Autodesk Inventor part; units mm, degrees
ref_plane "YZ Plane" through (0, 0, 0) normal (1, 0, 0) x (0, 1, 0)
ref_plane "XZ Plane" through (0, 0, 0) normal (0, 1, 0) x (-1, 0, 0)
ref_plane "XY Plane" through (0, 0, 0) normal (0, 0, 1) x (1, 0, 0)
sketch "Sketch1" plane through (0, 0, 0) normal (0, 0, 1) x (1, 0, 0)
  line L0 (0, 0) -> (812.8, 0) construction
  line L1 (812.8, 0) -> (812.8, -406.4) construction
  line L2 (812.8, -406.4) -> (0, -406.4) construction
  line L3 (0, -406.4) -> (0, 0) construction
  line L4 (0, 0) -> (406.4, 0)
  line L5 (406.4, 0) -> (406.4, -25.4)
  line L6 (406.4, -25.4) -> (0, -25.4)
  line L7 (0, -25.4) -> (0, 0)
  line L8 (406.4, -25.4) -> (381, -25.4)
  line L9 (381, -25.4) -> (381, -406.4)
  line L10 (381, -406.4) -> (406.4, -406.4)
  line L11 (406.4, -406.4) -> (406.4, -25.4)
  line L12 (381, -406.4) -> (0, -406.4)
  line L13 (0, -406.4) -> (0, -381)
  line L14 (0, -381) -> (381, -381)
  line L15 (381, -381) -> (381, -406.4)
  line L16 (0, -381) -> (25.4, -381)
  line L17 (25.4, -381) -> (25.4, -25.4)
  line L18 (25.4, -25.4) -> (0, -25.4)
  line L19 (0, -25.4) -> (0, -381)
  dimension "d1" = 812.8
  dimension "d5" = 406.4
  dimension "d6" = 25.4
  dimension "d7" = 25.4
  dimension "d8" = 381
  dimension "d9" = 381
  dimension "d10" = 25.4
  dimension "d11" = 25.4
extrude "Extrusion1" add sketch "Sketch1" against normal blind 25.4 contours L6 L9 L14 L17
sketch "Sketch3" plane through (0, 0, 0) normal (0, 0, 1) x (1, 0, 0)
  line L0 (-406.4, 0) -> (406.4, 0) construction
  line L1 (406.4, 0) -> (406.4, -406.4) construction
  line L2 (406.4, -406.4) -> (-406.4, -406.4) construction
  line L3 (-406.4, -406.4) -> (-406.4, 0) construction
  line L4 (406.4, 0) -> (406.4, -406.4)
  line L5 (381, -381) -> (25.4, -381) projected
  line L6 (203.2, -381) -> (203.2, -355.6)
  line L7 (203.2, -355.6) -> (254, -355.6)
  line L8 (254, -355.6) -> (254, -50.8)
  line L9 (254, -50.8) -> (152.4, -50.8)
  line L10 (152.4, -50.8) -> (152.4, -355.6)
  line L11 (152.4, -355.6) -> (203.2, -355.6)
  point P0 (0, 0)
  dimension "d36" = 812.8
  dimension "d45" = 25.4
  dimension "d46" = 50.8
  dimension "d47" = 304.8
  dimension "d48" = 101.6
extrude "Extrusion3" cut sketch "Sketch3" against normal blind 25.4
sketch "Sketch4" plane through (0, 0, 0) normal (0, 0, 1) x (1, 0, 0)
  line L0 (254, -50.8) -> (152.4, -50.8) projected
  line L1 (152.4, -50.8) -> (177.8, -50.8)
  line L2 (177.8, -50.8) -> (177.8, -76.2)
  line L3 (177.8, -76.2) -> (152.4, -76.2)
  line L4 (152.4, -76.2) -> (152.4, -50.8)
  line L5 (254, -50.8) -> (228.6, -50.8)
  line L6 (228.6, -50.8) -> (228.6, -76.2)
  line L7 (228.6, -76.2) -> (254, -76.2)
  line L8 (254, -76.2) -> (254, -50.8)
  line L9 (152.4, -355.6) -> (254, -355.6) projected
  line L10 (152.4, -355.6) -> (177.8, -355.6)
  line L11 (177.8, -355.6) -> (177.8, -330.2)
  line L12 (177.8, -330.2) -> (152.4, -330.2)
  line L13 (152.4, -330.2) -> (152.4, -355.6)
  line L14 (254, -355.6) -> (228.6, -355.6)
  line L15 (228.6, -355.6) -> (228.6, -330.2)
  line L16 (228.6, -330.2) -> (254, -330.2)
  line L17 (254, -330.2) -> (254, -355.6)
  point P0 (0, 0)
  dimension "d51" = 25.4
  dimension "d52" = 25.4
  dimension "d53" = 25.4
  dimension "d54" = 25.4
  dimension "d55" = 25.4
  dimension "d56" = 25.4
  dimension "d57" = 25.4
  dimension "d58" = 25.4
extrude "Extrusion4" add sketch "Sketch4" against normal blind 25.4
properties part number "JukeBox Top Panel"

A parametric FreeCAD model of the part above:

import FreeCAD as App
import Part
import Sketcher
from FreeCAD import Vector
Q = App.Units.Quantity


def add_polygon(sketch, points):
    """Adds a closed chain of lines whose ends are joined by coincident constraints."""
    first, n = sketch.GeometryCount, len(points)
    for a, b in zip(points, points[1:] + points[:1]):
        sketch.addGeometry(Part.LineSegment(App.Vector(*a, 0), App.Vector(*b, 0)), False)
    for i in range(n):
        sketch.addConstraint(Sketcher.Constraint("Coincident", first + i, 2, first + (i + 1) % n, 1))

doc = App.newDocument("Part")
body = doc.addObject("PartDesign::Body", "Body")

# Sketch on XY plane
sketch1 = doc.addObject("Sketcher::SketchObject", "Sketch")
body.addObject(sketch1)
sketch1.AttachmentSupport = (doc.XY_Plane, [""])
sketch1.MapMode = "FlatFace"
add_polygon(sketch1, [(381, -25), (25, -25), (25, -381), (381, -381)])  # lines 0-3
sketch1.addConstraint(Sketcher.Constraint("Horizontal", 0))
sketch1.addConstraint(Sketcher.Constraint("Vertical", 1))
sketch1.addConstraint(Sketcher.Constraint("Horizontal", 2))
sketch1.addConstraint(Sketcher.Constraint("Vertical", 3))
sketch1.addConstraint(Sketcher.Constraint("Equal", 2, 1))
sketch1.addConstraint(Sketcher.Constraint("DistanceX", -1, 1, 0, 2, Q("1 in")))
sketch1.addConstraint(Sketcher.Constraint("DistanceY", 0, 2, -1, 1, Q("1 in")))
sketch1.addConstraint(Sketcher.Constraint("DistanceY", 1, 2, -1, 1, Q("15 in")))
pad1 = doc.addObject("PartDesign::Pad", "Pad")
body.addObject(pad1)
pad1.Profile = sketch1
pad1.Length = Q("1 in")
pad1.Reversed = True

# Sketch on XY plane
sketch2 = doc.addObject("Sketcher::SketchObject", "Sketch001")
body.addObject(sketch2)
sketch2.AttachmentSupport = (doc.XY_Plane, [""])
sketch2.MapMode = "FlatFace"
add_polygon(sketch2, [(152, -356), (254, -356), (254, -51), (152, -51)])  # lines 0-3
sketch2.addConstraint(Sketcher.Constraint("Horizontal", 0))
sketch2.addConstraint(Sketcher.Constraint("Vertical", 1))
sketch2.addConstraint(Sketcher.Constraint("Horizontal", 2))
sketch2.addConstraint(Sketcher.Constraint("Vertical", 3))
sketch2.addConstraint(Sketcher.Constraint("DistanceX", 0, 1, 0, 2, Q("4 in")))
sketch2.addConstraint(Sketcher.Constraint("DistanceY", 1, 1, 1, 2, Q("12 in")))
sketch2.addConstraint(Sketcher.Constraint("DistanceY", 1, 2, -1, 1, Q("2 in")))
sketch2.addConstraint(Sketcher.Constraint("DistanceX", -1, 1, 0, 2, Q("10 in")))
pocket1 = doc.addObject("PartDesign::Pocket", "Pocket")
body.addObject(pocket1)
pocket1.Profile = sketch2
pocket1.Length = Q("1 in")

# Sketch on XY plane
sketch3 = doc.addObject("Sketcher::SketchObject", "Sketch002")
body.addObject(sketch3)
sketch3.AttachmentSupport = (doc.XY_Plane, [""])
sketch3.MapMode = "FlatFace"
add_polygon(sketch3, [(254, -76), (254, -51), (229, -51), (229, -76)])  # lines 0-3
add_polygon(sketch3, [(178, -76), (178, -51), (152, -51), (152, -76)])  # lines 4-7
add_polygon(sketch3, [(152, -330), (152, -356), (178, -356), (178, -330)])  # lines 8-11
add_polygon(sketch3, [(229, -330), (229, -356), (254, -356), (254, -330)])  # lines 12-15
sketch3.addConstraint(Sketcher.Constraint("Vertical", 0))
sketch3.addConstraint(Sketcher.Constraint("Horizontal", 1))
sketch3.addConstraint(Sketcher.Constraint("Vertical", 2))
sketch3.addConstraint(Sketcher.Constraint("Horizontal", 3))
sketch3.addConstraint(Sketcher.Constraint("Vertical", 4))
sketch3.addConstraint(Sketcher.Constraint("Horizontal", 5))
sketch3.addConstraint(Sketcher.Constraint("Vertical", 6))
sketch3.addConstraint(Sketcher.Constraint("Horizontal", 7))
sketch3.addConstraint(Sketcher.Constraint("Vertical", 8))
sketch3.addConstraint(Sketcher.Constraint("Horizontal", 9))
sketch3.addConstraint(Sketcher.Constraint("Vertical", 10))
sketch3.addConstraint(Sketcher.Constraint("Horizontal", 11))
sketch3.addConstraint(Sketcher.Constraint("Vertical", 12))
sketch3.addConstraint(Sketcher.Constraint("Horizontal", 13))
sketch3.addConstraint(Sketcher.Constraint("Vertical", 14))
sketch3.addConstraint(Sketcher.Constraint("Horizontal", 15))
sketch3.addConstraint(Sketcher.Constraint("Horizontal", 1, 2, 4, 2))
sketch3.addConstraint(Sketcher.Constraint("Horizontal", 3, 2, 6, 2))
sketch3.addConstraint(Sketcher.Constraint("Horizontal", 9, 2, 12, 2))
sketch3.addConstraint(Sketcher.Constraint("Horizontal", 11, 2, 14, 2))
sketch3.addConstraint(Sketcher.Constraint("Vertical", 6, 2, 8, 2))
sketch3.addConstraint(Sketcher.Constraint("Vertical", 7, 2, 9, 2))
sketch3.addConstraint(Sketcher.Constraint("Vertical", 2, 2, 12, 2))
sketch3.addConstraint(Sketcher.Constraint("Vertical", 3, 2, 13, 2))
sketch3.addConstraint(Sketcher.Constraint("Equal", 3, 5))
sketch3.addConstraint(Sketcher.Constraint("Equal", 15, 0))
sketch3.addConstraint(Sketcher.Constraint("Equal", 6, 8))
sketch3.addConstraint(Sketcher.Constraint("DistanceX", 1, 2, 1, 1, Q("1 in")))
sketch3.addConstraint(Sketcher.Constraint("DistanceX", -1, 1, 0, 2, Q("10 in")))
sketch3.addConstraint(Sketcher.Constraint("DistanceY", 0, 2, -1, 1, Q("2 in")))
sketch3.addConstraint(Sketcher.Constraint("DistanceX", -1, 1, 4, 2, Q("7 in")))
sketch3.addConstraint(Sketcher.Constraint("DistanceY", 8, 2, -1, 1, Q("14 in")))
pad2 = doc.addObject("PartDesign::Pad", "Pad001")
body.addObject(pad2)
pad2.Profile = sketch3
pad2.Length = Q("1 in")
pad2.Reversed = True

doc.recompute()
